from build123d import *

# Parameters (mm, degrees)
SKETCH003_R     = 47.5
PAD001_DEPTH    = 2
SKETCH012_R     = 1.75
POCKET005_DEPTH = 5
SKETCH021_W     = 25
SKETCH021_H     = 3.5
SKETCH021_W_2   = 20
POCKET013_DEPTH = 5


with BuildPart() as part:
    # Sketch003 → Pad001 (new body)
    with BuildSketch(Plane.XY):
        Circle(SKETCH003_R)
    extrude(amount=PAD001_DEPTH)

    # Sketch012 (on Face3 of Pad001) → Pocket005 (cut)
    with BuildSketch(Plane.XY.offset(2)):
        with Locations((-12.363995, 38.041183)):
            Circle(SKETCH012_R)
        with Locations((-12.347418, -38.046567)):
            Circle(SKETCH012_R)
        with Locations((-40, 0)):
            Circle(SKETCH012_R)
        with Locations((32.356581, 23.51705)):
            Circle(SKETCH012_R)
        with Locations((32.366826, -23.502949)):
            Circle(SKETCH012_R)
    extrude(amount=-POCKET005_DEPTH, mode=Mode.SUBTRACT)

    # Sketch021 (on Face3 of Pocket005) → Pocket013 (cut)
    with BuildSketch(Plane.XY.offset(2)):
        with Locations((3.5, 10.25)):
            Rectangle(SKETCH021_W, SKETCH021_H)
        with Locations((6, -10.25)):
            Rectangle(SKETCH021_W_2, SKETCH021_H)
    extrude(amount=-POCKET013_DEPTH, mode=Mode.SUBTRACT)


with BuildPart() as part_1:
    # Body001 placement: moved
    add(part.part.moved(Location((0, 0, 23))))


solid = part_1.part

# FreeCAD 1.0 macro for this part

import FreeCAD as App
import Part
import Sketcher
from FreeCAD import Vector
Q = App.Units.Quantity


def add_polygon(sketch, points):
    """Adds a closed chain of lines whose ends are joined by coincident constraints."""
    first, n = sketch.GeometryCount, len(points)
    for a, b in zip(points, points[1:] + points[:1]):
        sketch.addGeometry(Part.LineSegment(App.Vector(*a, 0), App.Vector(*b, 0)), False)
    for i in range(n):
        sketch.addConstraint(Sketcher.Constraint("Coincident", first + i, 2, first + (i + 1) % n, 1))

doc = App.newDocument("Part")
body = doc.addObject("PartDesign::Body", "Body")

sketch1 = body.newObject("Sketcher::SketchObject", "Sketch")
sketch1.AttachmentSupport = (doc.getObject("XY_Plane"), [""])
sketch1.MapMode = "FlatFace"
sketch1.addGeometry(Part.Circle(Vector(0, 0, 0), Vector(0, 0, 1), 47.5), False)
sketch1.addConstraint([
    Sketcher.Constraint("Coincident", 0, 3, -1, 1),
    Sketcher.Constraint("Diameter", 0, Q("95 mm")),
])
pad1 = body.newObject("PartDesign::Pad", "Pad")
pad1.Profile = sketch1
pad1.Length = 2

sketch2 = body.newObject("Sketcher::SketchObject", "Sketch001")
sketch2.AttachmentSupport = (doc.getObject("XY_Plane"), [""])
sketch2.MapMode = "FlatFace"
sketch2.AttachmentOffset = App.Placement(Vector(0, 0, 2), App.Rotation())
sketch2.addGeometry([
    Part.Circle(Vector(-12.363995, 38.041183, 0), Vector(0, 0, 1), 1.75),
    Part.Circle(Vector(-12.347418, -38.046567, 0), Vector(0, 0, 1), 1.75),
    Part.Circle(Vector(-40, 0, 0), Vector(0, 0, 1), 1.75),
    Part.Circle(Vector(32.356581, 23.51705, 0), Vector(0, 0, 1), 1.75),
    Part.Circle(Vector(32.366826, -23.502949, 0), Vector(0, 0, 1), 1.75),
], False)
sketch2.addConstraint([
    Sketcher.Constraint("Equal", 0, 1),
    Sketcher.Constraint("Equal", 1, 2),
    Sketcher.Constraint("Equal", 2, 3),
    Sketcher.Constraint("Equal", 3, 4),
    Sketcher.Constraint("PointOnObject", 2, 3, -1),
    Sketcher.Constraint("Diameter", 0, Q("3.5 mm")),
    Sketcher.Constraint("DistanceX", 2, 3, -1, 1, Q("40 mm")),
    Sketcher.Constraint("DistanceY", 4, 3, 3, 3, Q("47.019999 mm")),
    Sketcher.Constraint("DistanceX", 1, 3, 3, 3, Q("44.703999 mm")),
    Sketcher.Constraint("DistanceX", -1, 1, 3, 3, Q("32.356581 mm")),
    Sketcher.Constraint("DistanceY", -1, 1, 3, 3, Q("23.51705 mm")),
    Sketcher.Constraint("DistanceY", 1, 3, 0, 3, Q("76.08775 mm")),
    Sketcher.Constraint("DistanceY", 1, 3, 4, 3, Q("14.543618 mm")),
    Sketcher.Constraint("DistanceX", 0, 3, 4, 3, Q("44.730821 mm")),
    Sketcher.Constraint("DistanceX", 0, 3, -1, 1, Q("12.363995 mm")),
])
pocket1 = body.newObject("PartDesign::Pocket", "Pocket")
pocket1.Profile = sketch2
pocket1.Length = 5

sketch3 = body.newObject("Sketcher::SketchObject", "Sketch002")
sketch3.AttachmentSupport = (doc.getObject("XY_Plane"), [""])
sketch3.MapMode = "FlatFace"
sketch3.AttachmentOffset = App.Placement(Vector(0, 0, 2), App.Rotation())
add_polygon(sketch3, [(-9, 12), (-9, 8.5), (16, 8.5), (16, 12)])
add_polygon(sketch3, [(-4, -8.5), (-4, -12), (16, -12), (16, -8.5)])
sketch3.addConstraint([
    Sketcher.Constraint("Vertical", 0),
    Sketcher.Constraint("Horizontal", 1),
    Sketcher.Constraint("Vertical", 2),
    Sketcher.Constraint("Horizontal", 3),
    Sketcher.Constraint("Vertical", 4),
    Sketcher.Constraint("Horizontal", 5),
    Sketcher.Constraint("Vertical", 6),
    Sketcher.Constraint("Horizontal", 7),
    Sketcher.Constraint("Symmetric", 2, 2, 5, 2, -1),
    Sketcher.Constraint("Equal", 2, 4),
    Sketcher.Constraint("DistanceX", 1, 1, 1, 2, Q("25 mm")),
    Sketcher.Constraint("DistanceX", 5, 1, 5, 2, Q("20 mm")),
    Sketcher.Constraint("DistanceY", 0, 2, 0, 1, Q("3.5 mm")),
    Sketcher.Constraint("DistanceX", 0, 2, -1, 1, Q("9 mm")),
    Sketcher.Constraint("DistanceY", -1, 1, 2, 2, Q("12 mm")),
])
pocket2 = body.newObject("PartDesign::Pocket", "Pocket001")
pocket2.Profile = sketch3
pocket2.Length = 5
body2 = doc.addObject("PartDesign::Body", "Body001")
doc.recompute()

body.Placement = App.Placement(Vector(0, 0, 23), App.Rotation(Vector(0, 0, 1), 0))
boolean = body2.newObject("PartDesign::Boolean", "Boolean")
boolean.Type = "Fuse"
boolean.addObjects([body])

doc.recompute()
